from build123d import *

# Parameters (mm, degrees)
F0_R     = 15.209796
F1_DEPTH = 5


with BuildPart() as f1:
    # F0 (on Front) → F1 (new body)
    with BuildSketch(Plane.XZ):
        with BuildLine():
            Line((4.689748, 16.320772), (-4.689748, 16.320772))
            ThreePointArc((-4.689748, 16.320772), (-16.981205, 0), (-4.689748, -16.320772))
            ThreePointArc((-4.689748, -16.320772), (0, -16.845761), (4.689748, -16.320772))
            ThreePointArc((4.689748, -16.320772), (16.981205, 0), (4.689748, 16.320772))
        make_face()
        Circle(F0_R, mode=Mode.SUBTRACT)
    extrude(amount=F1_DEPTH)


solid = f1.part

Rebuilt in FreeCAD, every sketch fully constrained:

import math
import FreeCAD as App
import Part
import Sketcher

V = App.Vector

doc = App.newDocument("Part")
body = doc.addObject("PartDesign::Body", "Body")

sketch1 = body.newObject("Sketcher::SketchObject", "Sketch")
sketch1.AttachmentSupport = (doc.getObject("XZ_Plane"), [""])
sketch1.MapMode = "FlatFace"
sketch1.addGeometry(Part.LineSegment(V(5, 16, 0), V(-5, 16, 0)), False)
sketch1.addGeometry(Part.ArcOfCircle(Part.Circle(V(0, 0, 0), V(0, 0, 1), 17), math.radians(106), math.radians(254)), False)
sketch1.addGeometry(Part.ArcOfCircle(Part.Circle(V(0, 4, 0), V(0, 0, 1), 21), math.radians(-103), math.radians(-77)), False)
sketch1.addGeometry(Part.ArcOfCircle(Part.Circle(V(0, 0, 0), V(0, 0, 1), 17), math.radians(-74), math.radians(74)), False)
sketch1.addGeometry(Part.Circle(V(0, 0, 0), V(0, 0, 1), 15), False)
sketch1.addConstraint(Sketcher.Constraint("Coincident", 0, 2, 1, 1))
sketch1.addConstraint(Sketcher.Constraint("Coincident", 1, 2, 2, 1))
sketch1.addConstraint(Sketcher.Constraint("Coincident", 2, 2, 3, 1))
sketch1.addConstraint(Sketcher.Constraint("Coincident", 3, 2, 0, 1))
sketch1.addConstraint(Sketcher.Constraint("Horizontal", 0))
sketch1.addConstraint(Sketcher.Constraint("Coincident", 1, 3, -1, 1))
sketch1.addConstraint(Sketcher.Constraint("Coincident", 3, 3, -1, 1))
sketch1.addConstraint(Sketcher.Constraint("Coincident", 4, 3, -1, 1))
sketch1.addConstraint(Sketcher.Constraint("Equal", 1, 3))
sketch1.addConstraint(Sketcher.Constraint("PointOnObject", 2, 3, -2))
sketch1.addConstraint(Sketcher.Constraint("Vertical", 0, 2, 1, 2))
sketch1.addConstraint(Sketcher.Constraint("Radius", 2, 21.209349))
sketch1.addConstraint(Sketcher.Constraint("Diameter", 4, 30.419592))
sketch1.addConstraint(Sketcher.Constraint("Radius", 1, 16.981205))
sketch1.addConstraint(Sketcher.Constraint("DistanceX", 0, 2, 0, 1, 9.379496))
pad1 = body.newObject("PartDesign::Pad", "Pad")
pad1.Profile = sketch1
pad1.Length = 5

doc.recompute()
